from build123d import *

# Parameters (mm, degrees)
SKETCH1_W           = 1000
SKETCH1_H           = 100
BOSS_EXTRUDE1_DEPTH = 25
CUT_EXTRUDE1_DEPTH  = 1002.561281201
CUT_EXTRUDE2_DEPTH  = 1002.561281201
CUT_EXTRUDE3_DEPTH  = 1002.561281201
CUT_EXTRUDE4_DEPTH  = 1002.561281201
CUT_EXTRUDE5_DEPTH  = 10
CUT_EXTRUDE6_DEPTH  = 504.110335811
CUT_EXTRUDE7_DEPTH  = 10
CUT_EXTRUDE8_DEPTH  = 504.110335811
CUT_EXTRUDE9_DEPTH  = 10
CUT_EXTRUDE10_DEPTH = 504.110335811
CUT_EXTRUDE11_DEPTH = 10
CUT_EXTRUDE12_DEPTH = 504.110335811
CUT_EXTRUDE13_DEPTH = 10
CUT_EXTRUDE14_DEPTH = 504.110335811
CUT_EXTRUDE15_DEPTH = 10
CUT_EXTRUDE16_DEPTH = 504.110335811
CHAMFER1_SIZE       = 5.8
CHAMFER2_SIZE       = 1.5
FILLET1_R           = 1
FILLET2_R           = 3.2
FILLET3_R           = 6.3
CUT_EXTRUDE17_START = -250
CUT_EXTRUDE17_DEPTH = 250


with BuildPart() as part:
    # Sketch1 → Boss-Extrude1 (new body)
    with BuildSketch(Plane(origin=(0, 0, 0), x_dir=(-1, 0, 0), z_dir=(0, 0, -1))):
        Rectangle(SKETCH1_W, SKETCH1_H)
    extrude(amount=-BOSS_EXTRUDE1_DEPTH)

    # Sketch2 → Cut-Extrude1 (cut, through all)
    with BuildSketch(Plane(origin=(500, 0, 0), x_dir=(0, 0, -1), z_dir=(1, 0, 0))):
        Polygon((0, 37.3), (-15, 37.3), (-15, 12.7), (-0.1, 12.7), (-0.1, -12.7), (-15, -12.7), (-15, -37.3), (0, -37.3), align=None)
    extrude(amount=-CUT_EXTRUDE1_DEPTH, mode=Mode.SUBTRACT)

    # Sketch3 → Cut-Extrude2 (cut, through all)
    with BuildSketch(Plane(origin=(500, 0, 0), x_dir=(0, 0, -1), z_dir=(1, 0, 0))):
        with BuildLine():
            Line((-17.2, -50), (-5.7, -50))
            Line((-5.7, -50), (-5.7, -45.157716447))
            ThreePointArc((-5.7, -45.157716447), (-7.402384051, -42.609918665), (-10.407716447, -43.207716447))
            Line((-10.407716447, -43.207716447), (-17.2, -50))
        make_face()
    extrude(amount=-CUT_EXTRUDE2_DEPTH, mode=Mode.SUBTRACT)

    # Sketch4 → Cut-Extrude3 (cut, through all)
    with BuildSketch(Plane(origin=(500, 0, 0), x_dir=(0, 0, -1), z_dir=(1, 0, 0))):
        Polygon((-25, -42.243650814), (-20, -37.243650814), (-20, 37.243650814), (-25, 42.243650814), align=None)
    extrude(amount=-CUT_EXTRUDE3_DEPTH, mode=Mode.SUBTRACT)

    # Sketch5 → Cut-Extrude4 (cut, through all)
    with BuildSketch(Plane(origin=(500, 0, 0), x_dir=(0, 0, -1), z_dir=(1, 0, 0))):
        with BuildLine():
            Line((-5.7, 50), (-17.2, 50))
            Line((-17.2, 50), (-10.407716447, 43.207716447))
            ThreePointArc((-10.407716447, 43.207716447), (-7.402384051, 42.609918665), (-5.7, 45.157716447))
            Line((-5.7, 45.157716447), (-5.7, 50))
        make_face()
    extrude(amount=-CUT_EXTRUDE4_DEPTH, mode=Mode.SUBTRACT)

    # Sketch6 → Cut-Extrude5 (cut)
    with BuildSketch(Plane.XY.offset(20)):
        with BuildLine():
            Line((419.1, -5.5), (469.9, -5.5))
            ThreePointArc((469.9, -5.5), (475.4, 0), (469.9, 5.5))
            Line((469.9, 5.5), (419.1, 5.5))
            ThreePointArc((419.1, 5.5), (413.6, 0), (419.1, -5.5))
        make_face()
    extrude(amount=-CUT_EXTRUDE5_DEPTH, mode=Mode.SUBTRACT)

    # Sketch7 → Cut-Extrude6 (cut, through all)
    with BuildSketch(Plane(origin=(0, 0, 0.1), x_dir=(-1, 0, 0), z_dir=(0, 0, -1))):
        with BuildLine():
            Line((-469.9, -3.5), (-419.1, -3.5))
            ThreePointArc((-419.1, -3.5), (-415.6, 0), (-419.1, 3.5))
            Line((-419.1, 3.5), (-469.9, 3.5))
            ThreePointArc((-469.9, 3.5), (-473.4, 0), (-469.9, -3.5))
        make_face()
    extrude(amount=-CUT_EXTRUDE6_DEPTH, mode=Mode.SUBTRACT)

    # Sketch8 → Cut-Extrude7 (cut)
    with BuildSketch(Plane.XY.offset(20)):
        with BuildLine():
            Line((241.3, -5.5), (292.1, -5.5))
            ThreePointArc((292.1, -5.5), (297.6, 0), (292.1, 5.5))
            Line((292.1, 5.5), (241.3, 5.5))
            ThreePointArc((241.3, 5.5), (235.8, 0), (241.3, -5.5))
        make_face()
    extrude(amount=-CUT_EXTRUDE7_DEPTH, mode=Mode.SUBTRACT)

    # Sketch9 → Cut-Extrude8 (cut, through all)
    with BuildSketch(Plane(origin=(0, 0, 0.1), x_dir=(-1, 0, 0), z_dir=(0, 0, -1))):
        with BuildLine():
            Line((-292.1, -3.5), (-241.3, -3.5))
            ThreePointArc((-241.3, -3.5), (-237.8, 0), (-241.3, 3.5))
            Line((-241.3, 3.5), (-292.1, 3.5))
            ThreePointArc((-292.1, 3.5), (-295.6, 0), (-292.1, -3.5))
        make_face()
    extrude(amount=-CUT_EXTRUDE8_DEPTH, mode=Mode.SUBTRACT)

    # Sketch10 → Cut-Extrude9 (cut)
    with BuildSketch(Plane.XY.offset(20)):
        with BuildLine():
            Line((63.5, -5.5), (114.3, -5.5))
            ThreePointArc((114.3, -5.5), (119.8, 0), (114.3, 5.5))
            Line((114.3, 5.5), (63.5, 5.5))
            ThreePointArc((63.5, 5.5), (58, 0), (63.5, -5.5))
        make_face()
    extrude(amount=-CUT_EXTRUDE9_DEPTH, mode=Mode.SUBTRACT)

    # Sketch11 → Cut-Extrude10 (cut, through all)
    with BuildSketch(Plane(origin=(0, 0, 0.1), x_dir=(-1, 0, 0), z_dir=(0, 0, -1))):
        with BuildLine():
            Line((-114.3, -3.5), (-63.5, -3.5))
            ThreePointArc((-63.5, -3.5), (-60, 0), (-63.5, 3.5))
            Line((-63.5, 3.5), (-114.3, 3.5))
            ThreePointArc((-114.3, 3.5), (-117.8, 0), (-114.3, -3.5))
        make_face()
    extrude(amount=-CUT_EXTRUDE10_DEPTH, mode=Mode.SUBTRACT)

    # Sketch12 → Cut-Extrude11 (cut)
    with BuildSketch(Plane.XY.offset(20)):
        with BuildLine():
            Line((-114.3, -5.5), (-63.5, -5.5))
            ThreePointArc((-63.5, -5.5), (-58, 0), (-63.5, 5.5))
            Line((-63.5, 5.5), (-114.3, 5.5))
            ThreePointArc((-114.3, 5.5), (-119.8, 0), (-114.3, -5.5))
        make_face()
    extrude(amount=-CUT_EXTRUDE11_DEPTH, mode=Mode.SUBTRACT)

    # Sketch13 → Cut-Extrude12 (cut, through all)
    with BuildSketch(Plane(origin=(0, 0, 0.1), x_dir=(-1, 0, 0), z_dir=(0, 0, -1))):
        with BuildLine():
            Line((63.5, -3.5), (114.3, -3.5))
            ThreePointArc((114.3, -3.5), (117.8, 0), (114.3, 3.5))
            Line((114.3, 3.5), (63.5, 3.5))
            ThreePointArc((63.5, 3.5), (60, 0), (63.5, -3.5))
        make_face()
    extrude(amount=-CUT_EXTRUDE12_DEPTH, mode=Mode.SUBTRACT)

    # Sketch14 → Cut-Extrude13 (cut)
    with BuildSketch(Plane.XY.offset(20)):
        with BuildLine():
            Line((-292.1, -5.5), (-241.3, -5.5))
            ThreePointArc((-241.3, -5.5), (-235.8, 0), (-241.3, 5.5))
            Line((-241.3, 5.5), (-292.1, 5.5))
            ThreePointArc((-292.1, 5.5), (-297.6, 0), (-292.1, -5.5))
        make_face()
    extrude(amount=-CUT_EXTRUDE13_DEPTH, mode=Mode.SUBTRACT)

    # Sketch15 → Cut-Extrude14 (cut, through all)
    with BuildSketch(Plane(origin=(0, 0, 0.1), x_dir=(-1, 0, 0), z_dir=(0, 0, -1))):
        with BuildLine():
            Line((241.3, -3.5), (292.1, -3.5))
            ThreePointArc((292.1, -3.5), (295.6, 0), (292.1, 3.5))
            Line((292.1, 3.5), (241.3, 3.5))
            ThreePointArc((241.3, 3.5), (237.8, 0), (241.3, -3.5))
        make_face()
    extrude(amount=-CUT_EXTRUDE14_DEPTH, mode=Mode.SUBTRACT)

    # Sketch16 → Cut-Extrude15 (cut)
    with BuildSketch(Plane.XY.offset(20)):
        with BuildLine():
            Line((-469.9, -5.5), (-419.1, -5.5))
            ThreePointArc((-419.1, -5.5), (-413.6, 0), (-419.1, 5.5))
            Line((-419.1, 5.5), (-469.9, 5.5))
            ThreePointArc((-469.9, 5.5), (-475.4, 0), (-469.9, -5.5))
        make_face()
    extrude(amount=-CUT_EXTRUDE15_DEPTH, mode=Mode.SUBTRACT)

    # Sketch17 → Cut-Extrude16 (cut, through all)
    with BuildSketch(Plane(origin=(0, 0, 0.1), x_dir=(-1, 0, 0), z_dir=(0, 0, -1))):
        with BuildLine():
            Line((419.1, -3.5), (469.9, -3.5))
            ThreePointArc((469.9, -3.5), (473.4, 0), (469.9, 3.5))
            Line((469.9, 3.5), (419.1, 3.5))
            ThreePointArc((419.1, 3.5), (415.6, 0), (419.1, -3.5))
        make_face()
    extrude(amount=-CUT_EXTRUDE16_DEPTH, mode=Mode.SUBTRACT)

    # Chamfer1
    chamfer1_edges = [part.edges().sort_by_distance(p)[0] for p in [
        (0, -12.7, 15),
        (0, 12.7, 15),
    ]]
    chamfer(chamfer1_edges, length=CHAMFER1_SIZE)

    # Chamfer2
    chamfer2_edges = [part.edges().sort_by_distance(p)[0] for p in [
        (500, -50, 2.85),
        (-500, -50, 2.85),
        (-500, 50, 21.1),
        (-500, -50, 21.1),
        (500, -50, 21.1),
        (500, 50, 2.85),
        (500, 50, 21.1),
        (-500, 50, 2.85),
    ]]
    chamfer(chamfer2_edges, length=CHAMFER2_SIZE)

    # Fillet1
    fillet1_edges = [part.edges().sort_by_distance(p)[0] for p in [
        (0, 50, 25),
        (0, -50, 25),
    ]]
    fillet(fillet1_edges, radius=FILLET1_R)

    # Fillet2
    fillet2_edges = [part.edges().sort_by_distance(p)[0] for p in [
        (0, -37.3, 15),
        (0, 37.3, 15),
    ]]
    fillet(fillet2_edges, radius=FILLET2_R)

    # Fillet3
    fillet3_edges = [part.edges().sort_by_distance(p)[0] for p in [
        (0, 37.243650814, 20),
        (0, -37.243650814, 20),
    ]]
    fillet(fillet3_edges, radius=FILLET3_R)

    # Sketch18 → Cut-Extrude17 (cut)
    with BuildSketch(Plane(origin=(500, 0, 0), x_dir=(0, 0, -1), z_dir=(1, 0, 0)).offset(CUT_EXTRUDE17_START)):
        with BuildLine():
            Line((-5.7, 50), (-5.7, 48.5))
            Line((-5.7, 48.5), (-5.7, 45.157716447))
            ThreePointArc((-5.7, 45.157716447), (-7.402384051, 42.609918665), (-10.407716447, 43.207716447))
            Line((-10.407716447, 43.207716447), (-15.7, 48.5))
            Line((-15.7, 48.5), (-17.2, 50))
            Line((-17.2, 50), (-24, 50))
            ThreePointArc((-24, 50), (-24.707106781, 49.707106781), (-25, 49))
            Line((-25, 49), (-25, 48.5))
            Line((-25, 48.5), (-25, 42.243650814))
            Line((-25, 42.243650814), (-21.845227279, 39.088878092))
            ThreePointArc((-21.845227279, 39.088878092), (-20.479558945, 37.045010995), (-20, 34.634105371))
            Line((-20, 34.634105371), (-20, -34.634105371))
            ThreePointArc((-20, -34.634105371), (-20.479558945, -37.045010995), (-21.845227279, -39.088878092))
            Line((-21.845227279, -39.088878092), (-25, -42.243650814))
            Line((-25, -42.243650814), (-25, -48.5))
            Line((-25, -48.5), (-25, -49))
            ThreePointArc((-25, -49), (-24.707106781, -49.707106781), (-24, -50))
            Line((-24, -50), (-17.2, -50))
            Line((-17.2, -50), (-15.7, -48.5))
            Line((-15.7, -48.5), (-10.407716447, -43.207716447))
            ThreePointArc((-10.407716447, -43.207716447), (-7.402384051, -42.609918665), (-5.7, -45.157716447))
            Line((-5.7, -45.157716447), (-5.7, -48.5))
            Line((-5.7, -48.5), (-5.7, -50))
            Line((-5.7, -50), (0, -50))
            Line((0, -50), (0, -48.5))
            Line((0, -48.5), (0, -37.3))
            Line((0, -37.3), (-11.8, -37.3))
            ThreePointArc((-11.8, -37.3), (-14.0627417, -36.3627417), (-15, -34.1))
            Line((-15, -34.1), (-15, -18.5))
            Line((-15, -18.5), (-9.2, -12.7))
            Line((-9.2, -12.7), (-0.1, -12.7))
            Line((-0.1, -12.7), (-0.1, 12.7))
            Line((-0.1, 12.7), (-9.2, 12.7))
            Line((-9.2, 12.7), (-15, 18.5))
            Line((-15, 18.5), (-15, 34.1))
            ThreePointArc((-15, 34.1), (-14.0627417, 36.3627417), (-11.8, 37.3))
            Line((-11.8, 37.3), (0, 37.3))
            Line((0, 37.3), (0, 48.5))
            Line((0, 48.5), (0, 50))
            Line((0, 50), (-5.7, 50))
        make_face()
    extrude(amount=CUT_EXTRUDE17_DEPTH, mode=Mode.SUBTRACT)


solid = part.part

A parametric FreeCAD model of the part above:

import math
import FreeCAD as App
import Part
import Sketcher
Q = App.Units.Quantity


def edges_at(feature, points):
    """Names of the edges that pass closest to the given points."""
    edges = feature.Shape.Edges
    near = lambda p: min(range(len(edges)), key=lambda i: edges[i].distToShape(Part.Vertex(*p))[0])
    return sorted({f"Edge{near(p) + 1}" for p in points})

doc = App.newDocument("Part")
body = doc.addObject("PartDesign::Body", "Body")

# Sketch on XY plane
sketch1 = body.newObject("Sketcher::SketchObject", "Sketch")
sketch1.AttachmentSupport = (doc.getObject("XY_Plane"), [""])
sketch1.MapMode = "FlatFace"
sketch1.addGeometry(Part.LineSegment(App.Vector(500, 50, 0), App.Vector(500, -50, 0)), False)
sketch1.addGeometry(Part.LineSegment(App.Vector(500, -50, 0), App.Vector(-500, -50, 0)), False)
sketch1.addGeometry(Part.LineSegment(App.Vector(-500, -50, 0), App.Vector(-500, 50, 0)), False)
sketch1.addGeometry(Part.LineSegment(App.Vector(-500, 50, 0), App.Vector(500, 50, 0)), False)
sketch1.addConstraint(Sketcher.Constraint("Coincident", 0, 2, 1, 1))
sketch1.addConstraint(Sketcher.Constraint("Coincident", 1, 2, 2, 1))
sketch1.addConstraint(Sketcher.Constraint("Coincident", 2, 2, 3, 1))
sketch1.addConstraint(Sketcher.Constraint("Coincident", 3, 2, 0, 1))
sketch1.addConstraint(Sketcher.Constraint("Vertical", 0))
sketch1.addConstraint(Sketcher.Constraint("Horizontal", 1))
sketch1.addConstraint(Sketcher.Constraint("Vertical", 2))
sketch1.addConstraint(Sketcher.Constraint("Horizontal", 3))
sketch1.addConstraint(Sketcher.Constraint("Symmetric", 0, 2, 2, 2, -1, 1))
sketch1.addConstraint(Sketcher.Constraint("DistanceX", 1, 2, 1, 1, Q("1000 mm")))
sketch1.addConstraint(Sketcher.Constraint("DistanceY", 0, 2, 0, 1, Q("100 mm")))
pad1 = body.newObject("PartDesign::Pad", "Pad")
pad1.Profile = sketch1
pad1.Length = 25

# Sketch on YZ plane
sketch2 = body.newObject("Sketcher::SketchObject", "Sketch001")
sketch2.AttachmentSupport = (doc.getObject("YZ_Plane"), [""])
sketch2.MapMode = "FlatFace"
sketch2.AttachmentOffset = App.Placement(App.Vector(0, 0, 500), App.Rotation())
sketch2.addGeometry(Part.LineSegment(App.Vector(37, 0, 0), App.Vector(37, 15, 0)), False)
sketch2.addGeometry(Part.LineSegment(App.Vector(37, 15, 0), App.Vector(13, 15, 0)), False)
sketch2.addGeometry(Part.LineSegment(App.Vector(13, 15, 0), App.Vector(13, 0, 0)), False)
sketch2.addGeometry(Part.LineSegment(App.Vector(13, 0, 0), App.Vector(-13, 0, 0)), False)
sketch2.addGeometry(Part.LineSegment(App.Vector(-13, 0, 0), App.Vector(-13, 15, 0)), False)
sketch2.addGeometry(Part.LineSegment(App.Vector(-13, 15, 0), App.Vector(-37, 15, 0)), False)
sketch2.addGeometry(Part.LineSegment(App.Vector(-37, 15, 0), App.Vector(-37, 0, 0)), False)
sketch2.addGeometry(Part.LineSegment(App.Vector(-37, 0, 0), App.Vector(37, 0, 0)), False)
sketch2.addConstraint(Sketcher.Constraint("Coincident", 0, 2, 1, 1))
sketch2.addConstraint(Sketcher.Constraint("Coincident", 1, 2, 2, 1))
sketch2.addConstraint(Sketcher.Constraint("Coincident", 2, 2, 3, 1))
sketch2.addConstraint(Sketcher.Constraint("Coincident", 3, 2, 4, 1))
sketch2.addConstraint(Sketcher.Constraint("Coincident", 4, 2, 5, 1))
sketch2.addConstraint(Sketcher.Constraint("Coincident", 5, 2, 6, 1))
sketch2.addConstraint(Sketcher.Constraint("Coincident", 6, 2, 7, 1))
sketch2.addConstraint(Sketcher.Constraint("Coincident", 7, 2, 0, 1))
sketch2.addConstraint(Sketcher.Constraint("Vertical", 0))
sketch2.addConstraint(Sketcher.Constraint("Horizontal", 1))
sketch2.addConstraint(Sketcher.Constraint("Vertical", 2))
sketch2.addConstraint(Sketcher.Constraint("Horizontal", 3))
sketch2.addConstraint(Sketcher.Constraint("Vertical", 4))
sketch2.addConstraint(Sketcher.Constraint("Horizontal", 5))
sketch2.addConstraint(Sketcher.Constraint("Vertical", 6))
sketch2.addConstraint(Sketcher.Constraint("Horizontal", 7))
sketch2.addConstraint(Sketcher.Constraint("Symmetric", 6, 2, 7, 2, -1, 1))
sketch2.addConstraint(Sketcher.Constraint("Symmetric", 1, 2, 4, 2, -2))
sketch2.addConstraint(Sketcher.Constraint("DistanceY", 0, 1, 0, 2, Q("15 mm")))
sketch2.addConstraint(Sketcher.Constraint("DistanceX", 1, 2, 1, 1, Q("24.6 mm")))
sketch2.addConstraint(Sketcher.Constraint("DistanceX", 3, 2, 3, 1, Q("25.4 mm")))
sketch2.addConstraint(Sketcher.Constraint("DistanceY", 2, 2, 2, 1, Q("14.9 mm")))
pocket1 = body.newObject("PartDesign::Pocket", "Pocket")
pocket1.Profile = sketch2
pocket1.Type = "ThroughAll"

# Sketch on YZ plane
sketch3 = body.newObject("Sketcher::SketchObject", "Sketch002")
sketch3.AttachmentSupport = (doc.getObject("YZ_Plane"), [""])
sketch3.MapMode = "FlatFace"
sketch3.AttachmentOffset = App.Placement(App.Vector(0, 0, 500), App.Rotation())
sketch3.addGeometry(Part.LineSegment(App.Vector(-50, 17.2, 0), App.Vector(-50, 5.7, 0)), False)
sketch3.addGeometry(Part.LineSegment(App.Vector(-50, 5.7, 0), App.Vector(-45.2, 5.7, 0)), False)
sketch3.addGeometry(Part.ArcOfCircle(Part.Circle(App.Vector(-45.2, 8.5, 0), App.Vector(0, 0, 1), 2.8), math.radians(-90), math.radians(45)), False)
sketch3.addGeometry(Part.LineSegment(App.Vector(-43.2, 10.4, 0), App.Vector(-50, 17.2, 0)), False)
sketch3.addConstraint(Sketcher.Constraint("Coincident", 0, 2, 1, 1))
sketch3.addConstraint(Sketcher.Constraint("Tangent", 1, 2, 2, 1))
sketch3.addConstraint(Sketcher.Constraint("Tangent", 2, 2, 3, 1))
sketch3.addConstraint(Sketcher.Constraint("Coincident", 3, 2, 0, 1))
sketch3.addConstraint(Sketcher.Constraint("Vertical", 0))
sketch3.addConstraint(Sketcher.Constraint("Horizontal", 1))
sketch3.addConstraint(Sketcher.Constraint("Angle", 3, Q("135 deg")))
sketch3.addConstraint(Sketcher.Constraint("DistanceY", 0, 2, 0, 1, Q("11.5 mm")))
sketch3.addConstraint(Sketcher.Constraint("DistanceX", 0, 2, -1, 1, Q("50 mm")))
sketch3.addConstraint(Sketcher.Constraint("DistanceY", -1, 1, 0, 2, Q("5.7 mm")))
sketch3.addConstraint(Sketcher.Constraint("DistanceX", 2, 3, 2, 2, Q("1.95 mm")))
pocket2 = body.newObject("PartDesign::Pocket", "Pocket001")
pocket2.Profile = sketch3
pocket2.Type = "ThroughAll"

# Sketch on YZ plane
sketch4 = body.newObject("Sketcher::SketchObject", "Sketch003")
sketch4.AttachmentSupport = (doc.getObject("YZ_Plane"), [""])
sketch4.MapMode = "FlatFace"
sketch4.AttachmentOffset = App.Placement(App.Vector(0, 0, 500), App.Rotation())
sketch4.addGeometry(Part.LineSegment(App.Vector(-42, 25, 0), App.Vector(-37, 20, 0)), False)
sketch4.addGeometry(Part.LineSegment(App.Vector(-37, 20, 0), App.Vector(37, 20, 0)), False)
sketch4.addGeometry(Part.LineSegment(App.Vector(37, 20, 0), App.Vector(42, 25, 0)), False)
sketch4.addGeometry(Part.LineSegment(App.Vector(42, 25, 0), App.Vector(-42, 25, 0)), False)
sketch4.addConstraint(Sketcher.Constraint("Coincident", 0, 2, 1, 1))
sketch4.addConstraint(Sketcher.Constraint("Coincident", 1, 2, 2, 1))
sketch4.addConstraint(Sketcher.Constraint("Coincident", 2, 2, 3, 1))
sketch4.addConstraint(Sketcher.Constraint("Coincident", 3, 2, 0, 1))
sketch4.addConstraint(Sketcher.Constraint("Horizontal", 1))
sketch4.addConstraint(Sketcher.Constraint("Horizontal", 3))
sketch4.addConstraint(Sketcher.Constraint("Perpendicular", 0, 2))
sketch4.addConstraint(Sketcher.Constraint("Equal", 0, 2))
sketch4.addConstraint(Sketcher.Constraint("DistanceY", -1, 1, 0, 2, Q("20 mm")))
sketch4.addConstraint(Sketcher.Constraint("DistanceY", -1, 1, 2, 2, Q("25 mm")))
sketch4.addConstraint(Sketcher.Constraint("DistanceX", 1, 1, 1, 2, Q("74.487302 mm")))
sketch4.addConstraint(Sketcher.Constraint("DistanceX", 0, 2, -1, 1, Q("37.243651 mm")))
pocket3 = body.newObject("PartDesign::Pocket", "Pocket002")
pocket3.Profile = sketch4
pocket3.Type = "ThroughAll"

# Sketch on YZ plane
sketch5 = body.newObject("Sketcher::SketchObject", "Sketch004")
sketch5.AttachmentSupport = (doc.getObject("YZ_Plane"), [""])
sketch5.MapMode = "FlatFace"
sketch5.AttachmentOffset = App.Placement(App.Vector(0, 0, 500), App.Rotation())
sketch5.addGeometry(Part.LineSegment(App.Vector(50, 5.7, 0), App.Vector(50, 17.2, 0)), False)
sketch5.addGeometry(Part.LineSegment(App.Vector(50, 17.2, 0), App.Vector(43.2, 10.4, 0)), False)
sketch5.addGeometry(Part.ArcOfCircle(Part.Circle(App.Vector(45.2, 8.5, 0), App.Vector(0, 0, 1), 2.8), math.radians(135), math.radians(270)), False)
sketch5.addGeometry(Part.LineSegment(App.Vector(45.2, 5.7, 0), App.Vector(50, 5.7, 0)), False)
sketch5.addConstraint(Sketcher.Constraint("Coincident", 0, 2, 1, 1))
sketch5.addConstraint(Sketcher.Constraint("Tangent", 1, 2, 2, 1))
sketch5.addConstraint(Sketcher.Constraint("Tangent", 2, 2, 3, 1))
sketch5.addConstraint(Sketcher.Constraint("Coincident", 3, 2, 0, 1))
sketch5.addConstraint(Sketcher.Constraint("Vertical", 0))
sketch5.addConstraint(Sketcher.Constraint("Horizontal", 3))
sketch5.addConstraint(Sketcher.Constraint("Angle", 1, Q("-135 deg")))
sketch5.addConstraint(Sketcher.Constraint("DistanceY", 0, 1, 0, 2, Q("11.5 mm")))
sketch5.addConstraint(Sketcher.Constraint("DistanceX", -1, 1, 0, 2, Q("50 mm")))
sketch5.addConstraint(Sketcher.Constraint("DistanceY", -1, 1, 0, 2, Q("17.2 mm")))
sketch5.addConstraint(Sketcher.Constraint("DistanceX", 1, 2, 2, 3, Q("1.95 mm")))
pocket4 = body.newObject("PartDesign::Pocket", "Pocket003")
pocket4.Profile = sketch5
pocket4.Type = "ThroughAll"

# Sketch on XY plane
sketch6 = body.newObject("Sketcher::SketchObject", "Sketch005")
sketch6.AttachmentSupport = (doc.getObject("XY_Plane"), [""])
sketch6.MapMode = "FlatFace"
sketch6.AttachmentOffset = App.Placement(App.Vector(0, 0, 20), App.Rotation())
sketch6.addGeometry(Part.LineSegment(App.Vector(419, -6, 0), App.Vector(470, -6, 0)), False)
sketch6.addGeometry(Part.ArcOfCircle(Part.Circle(App.Vector(470, 0, 0), App.Vector(0, 0, 1), 6), math.radians(-90), math.radians(90)), False)
sketch6.addGeometry(Part.LineSegment(App.Vector(470, 6, 0), App.Vector(419, 6, 0)), False)
sketch6.addGeometry(Part.ArcOfCircle(Part.Circle(App.Vector(419, 0, 0), App.Vector(0, 0, 1), 6), math.radians(90), math.radians(270)), False)
sketch6.addConstraint(Sketcher.Constraint("Tangent", 0, 2, 1, 1))
sketch6.addConstraint(Sketcher.Constraint("Tangent", 1, 2, 2, 1))
sketch6.addConstraint(Sketcher.Constraint("Tangent", 2, 2, 3, 1))
sketch6.addConstraint(Sketcher.Constraint("Tangent", 3, 2, 0, 1))
sketch6.addConstraint(Sketcher.Constraint("Horizontal", 0))
sketch6.addConstraint(Sketcher.Constraint("Horizontal", 2))
sketch6.addConstraint(Sketcher.Constraint("PointOnObject", 1, 3, -1))
sketch6.addConstraint(Sketcher.Constraint("Radius", 1, Q("5.5 mm")))
sketch6.addConstraint(Sketcher.Constraint("DistanceX", 0, 1, 0, 2, Q("50.8 mm")))
sketch6.addConstraint(Sketcher.Constraint("DistanceX", -1, 1, 1, 3, Q("469.9 mm")))
pocket5 = body.newObject("PartDesign::Pocket", "Pocket004")
pocket5.Profile = sketch6
pocket5.Length = 10

# Sketch on XY plane
sketch7 = body.newObject("Sketcher::SketchObject", "Sketch006")
sketch7.AttachmentSupport = (doc.getObject("XY_Plane"), [""])
sketch7.MapMode = "FlatFace"
sketch7.AttachmentOffset = App.Placement(App.Vector(0, 0, 0.1), App.Rotation())
sketch7.addGeometry(Part.LineSegment(App.Vector(469.9, -3.5, 0), App.Vector(419.1, -3.5, 0)), False)
sketch7.addGeometry(Part.ArcOfCircle(Part.Circle(App.Vector(419.1, 0, 0), App.Vector(0, 0, 1), 3.5), math.radians(90), math.radians(270)), False)
sketch7.addGeometry(Part.LineSegment(App.Vector(419.1, 3.5, 0), App.Vector(469.9, 3.5, 0)), False)
sketch7.addGeometry(Part.ArcOfCircle(Part.Circle(App.Vector(469.9, 0, 0), App.Vector(0, 0, 1), 3.5), math.radians(-90), math.radians(90)), False)
sketch7.addConstraint(Sketcher.Constraint("Tangent", 0, 2, 1, 2))
sketch7.addConstraint(Sketcher.Constraint("Tangent", 1, 1, 2, 1))
sketch7.addConstraint(Sketcher.Constraint("Tangent", 2, 2, 3, 2))
sketch7.addConstraint(Sketcher.Constraint("Tangent", 3, 1, 0, 1))
sketch7.addConstraint(Sketcher.Constraint("Horizontal", 0))
sketch7.addConstraint(Sketcher.Constraint("Horizontal", 2))
sketch7.addConstraint(Sketcher.Constraint("PointOnObject", 1, 3, -1))
sketch7.addConstraint(Sketcher.Constraint("Radius", 1, Q("3.5 mm")))
sketch7.addConstraint(Sketcher.Constraint("DistanceX", 0, 2, 0, 1, Q("50.8 mm")))
sketch7.addConstraint(Sketcher.Constraint("DistanceX", -1, 1, 1, 3, Q("419.1 mm")))
pocket6 = body.newObject("PartDesign::Pocket", "Pocket005")
pocket6.Profile = sketch7
pocket6.Type = "ThroughAll"
pocket6.Reversed = True

# Sketch on XY plane
sketch8 = body.newObject("Sketcher::SketchObject", "Sketch007")
sketch8.AttachmentSupport = (doc.getObject("XY_Plane"), [""])
sketch8.MapMode = "FlatFace"
sketch8.AttachmentOffset = App.Placement(App.Vector(0, 0, 20), App.Rotation())
sketch8.addGeometry(Part.LineSegment(App.Vector(241, -6, 0), App.Vector(292, -6, 0)), False)
sketch8.addGeometry(Part.ArcOfCircle(Part.Circle(App.Vector(292, 0, 0), App.Vector(0, 0, 1), 6), math.radians(-90), math.radians(90)), False)
sketch8.addGeometry(Part.LineSegment(App.Vector(292, 6, 0), App.Vector(241, 6, 0)), False)
sketch8.addGeometry(Part.ArcOfCircle(Part.Circle(App.Vector(241, 0, 0), App.Vector(0, 0, 1), 6), math.radians(90), math.radians(270)), False)
sketch8.addConstraint(Sketcher.Constraint("Tangent", 0, 2, 1, 1))
sketch8.addConstraint(Sketcher.Constraint("Tangent", 1, 2, 2, 1))
sketch8.addConstraint(Sketcher.Constraint("Tangent", 2, 2, 3, 1))
sketch8.addConstraint(Sketcher.Constraint("Tangent", 3, 2, 0, 1))
sketch8.addConstraint(Sketcher.Constraint("Horizontal", 0))
sketch8.addConstraint(Sketcher.Constraint("Horizontal", 2))
sketch8.addConstraint(Sketcher.Constraint("PointOnObject", 1, 3, -1))
sketch8.addConstraint(Sketcher.Constraint("Radius", 1, Q("5.5 mm")))
sketch8.addConstraint(Sketcher.Constraint("DistanceX", 0, 1, 0, 2, Q("50.8 mm")))
sketch8.addConstraint(Sketcher.Constraint("DistanceX", -1, 1, 1, 3, Q("292.1 mm")))
pocket7 = body.newObject("PartDesign::Pocket", "Pocket006")
pocket7.Profile = sketch8
pocket7.Length = 10

# Sketch on XY plane
sketch9 = body.newObject("Sketcher::SketchObject", "Sketch008")
sketch9.AttachmentSupport = (doc.getObject("XY_Plane"), [""])
sketch9.MapMode = "FlatFace"
sketch9.AttachmentOffset = App.Placement(App.Vector(0, 0, 0.1), App.Rotation())
sketch9.addGeometry(Part.LineSegment(App.Vector(292.1, -3.5, 0), App.Vector(241.3, -3.5, 0)), False)
sketch9.addGeometry(Part.ArcOfCircle(Part.Circle(App.Vector(241.3, 0, 0), App.Vector(0, 0, 1), 3.5), math.radians(90), math.radians(270)), False)
sketch9.addGeometry(Part.LineSegment(App.Vector(241.3, 3.5, 0), App.Vector(292.1, 3.5, 0)), False)
sketch9.addGeometry(Part.ArcOfCircle(Part.Circle(App.Vector(292.1, 0, 0), App.Vector(0, 0, 1), 3.5), math.radians(-90), math.radians(90)), False)
sketch9.addConstraint(Sketcher.Constraint("Tangent", 0, 2, 1, 2))
sketch9.addConstraint(Sketcher.Constraint("Tangent", 1, 1, 2, 1))
sketch9.addConstraint(Sketcher.Constraint("Tangent", 2, 2, 3, 2))
sketch9.addConstraint(Sketcher.Constraint("Tangent", 3, 1, 0, 1))
sketch9.addConstraint(Sketcher.Constraint("Horizontal", 0))
sketch9.addConstraint(Sketcher.Constraint("Horizontal", 2))
sketch9.addConstraint(Sketcher.Constraint("PointOnObject", 1, 3, -1))
sketch9.addConstraint(Sketcher.Constraint("Radius", 1, Q("3.5 mm")))
sketch9.addConstraint(Sketcher.Constraint("DistanceX", 0, 2, 0, 1, Q("50.8 mm")))
sketch9.addConstraint(Sketcher.Constraint("DistanceX", -1, 1, 1, 3, Q("241.3 mm")))
pocket8 = body.newObject("PartDesign::Pocket", "Pocket007")
pocket8.Profile = sketch9
pocket8.Type = "ThroughAll"
pocket8.Reversed = True

# Sketch on XY plane
sketch10 = body.newObject("Sketcher::SketchObject", "Sketch009")
sketch10.AttachmentSupport = (doc.getObject("XY_Plane"), [""])
sketch10.MapMode = "FlatFace"
sketch10.AttachmentOffset = App.Placement(App.Vector(0, 0, 20), App.Rotation())
sketch10.addGeometry(Part.LineSegment(App.Vector(64, -6, 0), App.Vector(114, -6, 0)), False)
sketch10.addGeometry(Part.ArcOfCircle(Part.Circle(App.Vector(114, 0, 0), App.Vector(0, 0, 1), 6), math.radians(-90), math.radians(90)), False)
sketch10.addGeometry(Part.LineSegment(App.Vector(114, 6, 0), App.Vector(64, 6, 0)), False)
sketch10.addGeometry(Part.ArcOfCircle(Part.Circle(App.Vector(64, 0, 0), App.Vector(0, 0, 1), 6), math.radians(90), math.radians(270)), False)
sketch10.addConstraint(Sketcher.Constraint("Tangent", 0, 2, 1, 1))
sketch10.addConstraint(Sketcher.Constraint("Tangent", 1, 2, 2, 1))
sketch10.addConstraint(Sketcher.Constraint("Tangent", 2, 2, 3, 1))
sketch10.addConstraint(Sketcher.Constraint("Tangent", 3, 2, 0, 1))
sketch10.addConstraint(Sketcher.Constraint("Horizontal", 0))
sketch10.addConstraint(Sketcher.Constraint("Horizontal", 2))
sketch10.addConstraint(Sketcher.Constraint("PointOnObject", 1, 3, -1))
sketch10.addConstraint(Sketcher.Constraint("Radius", 1, Q("5.5 mm")))
sketch10.addConstraint(Sketcher.Constraint("DistanceX", 0, 1, 0, 2, Q("50.8 mm")))
sketch10.addConstraint(Sketcher.Constraint("DistanceX", -1, 1, 1, 3, Q("114.3 mm")))
pocket9 = body.newObject("PartDesign::Pocket", "Pocket008")
pocket9.Profile = sketch10
pocket9.Length = 10

# Sketch on XY plane
sketch11 = body.newObject("Sketcher::SketchObject", "Sketch010")
sketch11.AttachmentSupport = (doc.getObject("XY_Plane"), [""])
sketch11.MapMode = "FlatFace"
sketch11.AttachmentOffset = App.Placement(App.Vector(0, 0, 0.1), App.Rotation())
sketch11.addGeometry(Part.LineSegment(App.Vector(114.3, -3.5, 0), App.Vector(63.5, -3.5, 0)), False)
sketch11.addGeometry(Part.ArcOfCircle(Part.Circle(App.Vector(63.5, 0, 0), App.Vector(0, 0, 1), 3.5), math.radians(90), math.radians(270)), False)
sketch11.addGeometry(Part.LineSegment(App.Vector(63.5, 3.5, 0), App.Vector(114.3, 3.5, 0)), False)
sketch11.addGeometry(Part.ArcOfCircle(Part.Circle(App.Vector(114.3, 0, 0), App.Vector(0, 0, 1), 3.5), math.radians(-90), math.radians(90)), False)
sketch11.addConstraint(Sketcher.Constraint("Tangent", 0, 2, 1, 2))
sketch11.addConstraint(Sketcher.Constraint("Tangent", 1, 1, 2, 1))
sketch11.addConstraint(Sketcher.Constraint("Tangent", 2, 2, 3, 2))
sketch11.addConstraint(Sketcher.Constraint("Tangent", 3, 1, 0, 1))
sketch11.addConstraint(Sketcher.Constraint("Horizontal", 0))
sketch11.addConstraint(Sketcher.Constraint("Horizontal", 2))
sketch11.addConstraint(Sketcher.Constraint("PointOnObject", 1, 3, -1))
sketch11.addConstraint(Sketcher.Constraint("Radius", 1, Q("3.5 mm")))
sketch11.addConstraint(Sketcher.Constraint("DistanceX", 0, 2, 0, 1, Q("50.8 mm")))
sketch11.addConstraint(Sketcher.Constraint("DistanceX", -1, 1, 1, 3, Q("63.5 mm")))
pocket10 = body.newObject("PartDesign::Pocket", "Pocket009")
pocket10.Profile = sketch11
pocket10.Type = "ThroughAll"
pocket10.Reversed = True

# Sketch on XY plane
sketch12 = body.newObject("Sketcher::SketchObject", "Sketch011")
sketch12.AttachmentSupport = (doc.getObject("XY_Plane"), [""])
sketch12.MapMode = "FlatFace"
sketch12.AttachmentOffset = App.Placement(App.Vector(0, 0, 20), App.Rotation())
sketch12.addGeometry(Part.LineSegment(App.Vector(-114, -6, 0), App.Vector(-64, -6, 0)), False)
sketch12.addGeometry(Part.ArcOfCircle(Part.Circle(App.Vector(-64, 0, 0), App.Vector(0, 0, 1), 6), math.radians(-90), math.radians(90)), False)
sketch12.addGeometry(Part.LineSegment(App.Vector(-64, 6, 0), App.Vector(-114, 6, 0)), False)
sketch12.addGeometry(Part.ArcOfCircle(Part.Circle(App.Vector(-114, 0, 0), App.Vector(0, 0, 1), 6), math.radians(90), math.radians(270)), False)
sketch12.addConstraint(Sketcher.Constraint("Tangent", 0, 2, 1, 1))
sketch12.addConstraint(Sketcher.Constraint("Tangent", 1, 2, 2, 1))
sketch12.addConstraint(Sketcher.Constraint("Tangent", 2, 2, 3, 1))
sketch12.addConstraint(Sketcher.Constraint("Tangent", 3, 2, 0, 1))
sketch12.addConstraint(Sketcher.Constraint("Horizontal", 0))
sketch12.addConstraint(Sketcher.Constraint("Horizontal", 2))
sketch12.addConstraint(Sketcher.Constraint("PointOnObject", 1, 3, -1))
sketch12.addConstraint(Sketcher.Constraint("Radius", 1, Q("5.5 mm")))
sketch12.addConstraint(Sketcher.Constraint("DistanceX", 0, 1, 0, 2, Q("50.8 mm")))
sketch12.addConstraint(Sketcher.Constraint("DistanceX", 1, 3, -1, 1, Q("63.5 mm")))
pocket11 = body.newObject("PartDesign::Pocket", "Pocket010")
pocket11.Profile = sketch12
pocket11.Length = 10

# Sketch on XY plane
sketch13 = body.newObject("Sketcher::SketchObject", "Sketch012")
sketch13.AttachmentSupport = (doc.getObject("XY_Plane"), [""])
sketch13.MapMode = "FlatFace"
sketch13.AttachmentOffset = App.Placement(App.Vector(0, 0, 0.1), App.Rotation())
sketch13.addGeometry(Part.LineSegment(App.Vector(-63.5, -3.5, 0), App.Vector(-114.3, -3.5, 0)), False)
sketch13.addGeometry(Part.ArcOfCircle(Part.Circle(App.Vector(-114.3, 0, 0), App.Vector(0, 0, 1), 3.5), math.radians(90), math.radians(270)), False)
sketch13.addGeometry(Part.LineSegment(App.Vector(-114.3, 3.5, 0), App.Vector(-63.5, 3.5, 0)), False)
sketch13.addGeometry(Part.ArcOfCircle(Part.Circle(App.Vector(-63.5, 0, 0), App.Vector(0, 0, 1), 3.5), math.radians(-90), math.radians(90)), False)
sketch13.addConstraint(Sketcher.Constraint("Tangent", 0, 2, 1, 2))
sketch13.addConstraint(Sketcher.Constraint("Tangent", 1, 1, 2, 1))
sketch13.addConstraint(Sketcher.Constraint("Tangent", 2, 2, 3, 2))
sketch13.addConstraint(Sketcher.Constraint("Tangent", 3, 1, 0, 1))
sketch13.addConstraint(Sketcher.Constraint("Horizontal", 0))
sketch13.addConstraint(Sketcher.Constraint("Horizontal", 2))
sketch13.addConstraint(Sketcher.Constraint("PointOnObject", 1, 3, -1))
sketch13.addConstraint(Sketcher.Constraint("Radius", 1, Q("3.5 mm")))
sketch13.addConstraint(Sketcher.Constraint("DistanceX", 0, 2, 0, 1, Q("50.8 mm")))
sketch13.addConstraint(Sketcher.Constraint("DistanceX", 1, 3, -1, 1, Q("114.3 mm")))
pocket12 = body.newObject("PartDesign::Pocket", "Pocket011")
pocket12.Profile = sketch13
pocket12.Type = "ThroughAll"
pocket12.Reversed = True

# Sketch on XY plane
sketch14 = body.newObject("Sketcher::SketchObject", "Sketch013")
sketch14.AttachmentSupport = (doc.getObject("XY_Plane"), [""])
sketch14.MapMode = "FlatFace"
sketch14.AttachmentOffset = App.Placement(App.Vector(0, 0, 20), App.Rotation())
sketch14.addGeometry(Part.LineSegment(App.Vector(-292, -6, 0), App.Vector(-241, -6, 0)), False)
sketch14.addGeometry(Part.ArcOfCircle(Part.Circle(App.Vector(-241, 0, 0), App.Vector(0, 0, 1), 6), math.radians(-90), math.radians(90)), False)
sketch14.addGeometry(Part.LineSegment(App.Vector(-241, 6, 0), App.Vector(-292, 6, 0)), False)
sketch14.addGeometry(Part.ArcOfCircle(Part.Circle(App.Vector(-292, 0, 0), App.Vector(0, 0, 1), 6), math.radians(90), math.radians(270)), False)
sketch14.addConstraint(Sketcher.Constraint("Tangent", 0, 2, 1, 1))
sketch14.addConstraint(Sketcher.Constraint("Tangent", 1, 2, 2, 1))
sketch14.addConstraint(Sketcher.Constraint("Tangent", 2, 2, 3, 1))
sketch14.addConstraint(Sketcher.Constraint("Tangent", 3, 2, 0, 1))
sketch14.addConstraint(Sketcher.Constraint("Horizontal", 0))
sketch14.addConstraint(Sketcher.Constraint("Horizontal", 2))
sketch14.addConstraint(Sketcher.Constraint("PointOnObject", 1, 3, -1))
sketch14.addConstraint(Sketcher.Constraint("Radius", 1, Q("5.5 mm")))
sketch14.addConstraint(Sketcher.Constraint("DistanceX", 0, 1, 0, 2, Q("50.8 mm")))
sketch14.addConstraint(Sketcher.Constraint("DistanceX", 1, 3, -1, 1, Q("241.3 mm")))
pocket13 = body.newObject("PartDesign::Pocket", "Pocket012")
pocket13.Profile = sketch14
pocket13.Length = 10

# Sketch on XY plane
sketch15 = body.newObject("Sketcher::SketchObject", "Sketch014")
sketch15.AttachmentSupport = (doc.getObject("XY_Plane"), [""])
sketch15.MapMode = "FlatFace"
sketch15.AttachmentOffset = App.Placement(App.Vector(0, 0, 0.1), App.Rotation())
sketch15.addGeometry(Part.LineSegment(App.Vector(-241.3, -3.5, 0), App.Vector(-292.1, -3.5, 0)), False)
sketch15.addGeometry(Part.ArcOfCircle(Part.Circle(App.Vector(-292.1, 0, 0), App.Vector(0, 0, 1), 3.5), math.radians(90), math.radians(270)), False)
sketch15.addGeometry(Part.LineSegment(App.Vector(-292.1, 3.5, 0), App.Vector(-241.3, 3.5, 0)), False)
sketch15.addGeometry(Part.ArcOfCircle(Part.Circle(App.Vector(-241.3, 0, 0), App.Vector(0, 0, 1), 3.5), math.radians(-90), math.radians(90)), False)
sketch15.addConstraint(Sketcher.Constraint("Tangent", 0, 2, 1, 2))
sketch15.addConstraint(Sketcher.Constraint("Tangent", 1, 1, 2, 1))
sketch15.addConstraint(Sketcher.Constraint("Tangent", 2, 2, 3, 2))
sketch15.addConstraint(Sketcher.Constraint("Tangent", 3, 1, 0, 1))
sketch15.addConstraint(Sketcher.Constraint("Horizontal", 0))
sketch15.addConstraint(Sketcher.Constraint("Horizontal", 2))
sketch15.addConstraint(Sketcher.Constraint("PointOnObject", 1, 3, -1))
sketch15.addConstraint(Sketcher.Constraint("Radius", 1, Q("3.5 mm")))
sketch15.addConstraint(Sketcher.Constraint("DistanceX", 0, 2, 0, 1, Q("50.8 mm")))
sketch15.addConstraint(Sketcher.Constraint("DistanceX", 1, 3, -1, 1, Q("292.1 mm")))
pocket14 = body.newObject("PartDesign::Pocket", "Pocket013")
pocket14.Profile = sketch15
pocket14.Type = "ThroughAll"
pocket14.Reversed = True

# Sketch on XY plane
sketch16 = body.newObject("Sketcher::SketchObject", "Sketch015")
sketch16.AttachmentSupport = (doc.getObject("XY_Plane"), [""])
sketch16.MapMode = "FlatFace"
sketch16.AttachmentOffset = App.Placement(App.Vector(0, 0, 20), App.Rotation())
sketch16.addGeometry(Part.LineSegment(App.Vector(-470, -6, 0), App.Vector(-419, -6, 0)), False)
sketch16.addGeometry(Part.ArcOfCircle(Part.Circle(App.Vector(-419, 0, 0), App.Vector(0, 0, 1), 6), math.radians(-90), math.radians(90)), False)
sketch16.addGeometry(Part.LineSegment(App.Vector(-419, 6, 0), App.Vector(-470, 6, 0)), False)
sketch16.addGeometry(Part.ArcOfCircle(Part.Circle(App.Vector(-470, 0, 0), App.Vector(0, 0, 1), 6), math.radians(90), math.radians(270)), False)
sketch16.addConstraint(Sketcher.Constraint("Tangent", 0, 2, 1, 1))
sketch16.addConstraint(Sketcher.Constraint("Tangent", 1, 2, 2, 1))
sketch16.addConstraint(Sketcher.Constraint("Tangent", 2, 2, 3, 1))
sketch16.addConstraint(Sketcher.Constraint("Tangent", 3, 2, 0, 1))
sketch16.addConstraint(Sketcher.Constraint("Horizontal", 0))
sketch16.addConstraint(Sketcher.Constraint("Horizontal", 2))
sketch16.addConstraint(Sketcher.Constraint("PointOnObject", 1, 3, -1))
sketch16.addConstraint(Sketcher.Constraint("Radius", 1, Q("5.5 mm")))
sketch16.addConstraint(Sketcher.Constraint("DistanceX", 0, 1, 0, 2, Q("50.8 mm")))
sketch16.addConstraint(Sketcher.Constraint("DistanceX", 1, 3, -1, 1, Q("419.1 mm")))
pocket15 = body.newObject("PartDesign::Pocket", "Pocket014")
pocket15.Profile = sketch16
pocket15.Length = 10

# Sketch on XY plane
sketch17 = body.newObject("Sketcher::SketchObject", "Sketch016")
sketch17.AttachmentSupport = (doc.getObject("XY_Plane"), [""])
sketch17.MapMode = "FlatFace"
sketch17.AttachmentOffset = App.Placement(App.Vector(0, 0, 0.1), App.Rotation())
sketch17.addGeometry(Part.LineSegment(App.Vector(-419.1, -3.5, 0), App.Vector(-469.9, -3.5, 0)), False)
sketch17.addGeometry(Part.ArcOfCircle(Part.Circle(App.Vector(-469.9, 0, 0), App.Vector(0, 0, 1), 3.5), math.radians(90), math.radians(270)), False)
sketch17.addGeometry(Part.LineSegment(App.Vector(-469.9, 3.5, 0), App.Vector(-419.1, 3.5, 0)), False)
sketch17.addGeometry(Part.ArcOfCircle(Part.Circle(App.Vector(-419.1, 0, 0), App.Vector(0, 0, 1), 3.5), math.radians(-90), math.radians(90)), False)
sketch17.addConstraint(Sketcher.Constraint("Tangent", 0, 2, 1, 2))
sketch17.addConstraint(Sketcher.Constraint("Tangent", 1, 1, 2, 1))
sketch17.addConstraint(Sketcher.Constraint("Tangent", 2, 2, 3, 2))
sketch17.addConstraint(Sketcher.Constraint("Tangent", 3, 1, 0, 1))
sketch17.addConstraint(Sketcher.Constraint("Horizontal", 0))
sketch17.addConstraint(Sketcher.Constraint("Horizontal", 2))
sketch17.addConstraint(Sketcher.Constraint("PointOnObject", 1, 3, -1))
sketch17.addConstraint(Sketcher.Constraint("Radius", 1, Q("3.5 mm")))
sketch17.addConstraint(Sketcher.Constraint("DistanceX", 0, 2, 0, 1, Q("50.8 mm")))
sketch17.addConstraint(Sketcher.Constraint("DistanceX", 1, 3, -1, 1, Q("469.9 mm")))
pocket16 = body.newObject("PartDesign::Pocket", "Pocket015")
pocket16.Profile = sketch17
pocket16.Type = "ThroughAll"
pocket16.Reversed = True
doc.recompute()

chamfer = body.newObject("PartDesign::Chamfer", "Chamfer")
chamfer.Base = (pocket16, edges_at(pocket16, [(0, -12.7, 15), (0, 12.7, 15)]))
chamfer.Size = 5.8
doc.recompute()

chamfer2 = body.newObject("PartDesign::Chamfer", "Chamfer001")
chamfer2.Base = (chamfer, edges_at(chamfer, [
    (500, -50, 2.85),
    (-500, -50, 2.85),
    (-500, 50, 21.1),
    (-500, -50, 21.1),
    (500, -50, 21.1),
    (500, 50, 2.85),
    (500, 50, 21.1),
    (-500, 50, 2.85),
]))
chamfer2.Size = 1.5
doc.recompute()

fillet = body.newObject("PartDesign::Fillet", "Fillet")
fillet.Base = (chamfer2, edges_at(chamfer2, [(0, 50, 25), (0, -50, 25)]))
fillet.Radius = 1
doc.recompute()

fillet2 = body.newObject("PartDesign::Fillet", "Fillet001")
fillet2.Base = (fillet, edges_at(fillet, [(0, -37.3, 15), (0, 37.3, 15)]))
fillet2.Radius = 3.2
doc.recompute()

fillet3 = body.newObject("PartDesign::Fillet", "Fillet002")
fillet3.Base = (fillet2, edges_at(fillet2, [(0, 37.244, 20), (0, -37.244, 20)]))
fillet3.Radius = 6.3

# Sketch on YZ plane
sketch18 = body.newObject("Sketcher::SketchObject", "Sketch017")
sketch18.AttachmentSupport = (doc.getObject("YZ_Plane"), [""])
sketch18.MapMode = "FlatFace"
sketch18.AttachmentOffset = App.Placement(App.Vector(0, 0, 250), App.Rotation())
sketch18.addGeometry(Part.LineSegment(App.Vector(50, 5.7, 0), App.Vector(45.2, 5.7, 0)), False)
sketch18.addGeometry(Part.ArcOfCircle(Part.Circle(App.Vector(45.2, 8.5, 0), App.Vector(0, 0, 1), 2.8), math.radians(135), math.radians(270)), False)
sketch18.addGeometry(Part.LineSegment(App.Vector(43.2, 10.4, 0), App.Vector(50, 17.2, 0)), False)
sketch18.addGeometry(Part.LineSegment(App.Vector(50, 17.2, 0), App.Vector(50, 24, 0)), False)
sketch18.addGeometry(Part.ArcOfCircle(Part.Circle(App.Vector(49, 24, 0), App.Vector(0, 0, 1), 1), math.radians(0), math.radians(90)), False)
sketch18.addGeometry(Part.LineSegment(App.Vector(49, 25, 0), App.Vector(42.2, 25, 0)), False)
sketch18.addGeometry(Part.LineSegment(App.Vector(42.2, 25, 0), App.Vector(39.1, 21.8, 0)), False)
sketch18.addGeometry(Part.ArcOfCircle(Part.Circle(App.Vector(34.6, 26.3, 0), App.Vector(0, 0, 1), 6.3), math.radians(-90), math.radians(-45)), False)
sketch18.addGeometry(Part.LineSegment(App.Vector(34.6, 20, 0), App.Vector(-34.6, 20, 0)), False)
sketch18.addGeometry(Part.ArcOfCircle(Part.Circle(App.Vector(-34.6, 26.3, 0), App.Vector(0, 0, 1), 6.3), math.radians(-135), math.radians(-90)), False)
sketch18.addGeometry(Part.LineSegment(App.Vector(-39.1, 21.8, 0), App.Vector(-42.2, 25, 0)), False)
sketch18.addGeometry(Part.LineSegment(App.Vector(-42.2, 25, 0), App.Vector(-49, 25, 0)), False)
sketch18.addGeometry(Part.ArcOfCircle(Part.Circle(App.Vector(-49, 24, 0), App.Vector(0, 0, 1), 1), math.radians(90), math.radians(180)), False)
sketch18.addGeometry(Part.LineSegment(App.Vector(-50, 24, 0), App.Vector(-50, 17.2, 0)), False)
sketch18.addGeometry(Part.LineSegment(App.Vector(-50, 17.2, 0), App.Vector(-43.2, 10.4, 0)), False)
sketch18.addGeometry(Part.ArcOfCircle(Part.Circle(App.Vector(-45.2, 8.5, 0), App.Vector(0, 0, 1), 2.8), math.radians(-90), math.radians(45)), False)
sketch18.addGeometry(Part.LineSegment(App.Vector(-45.2, 5.7, 0), App.Vector(-50, 5.7, 0)), False)
sketch18.addGeometry(Part.LineSegment(App.Vector(-50, 5.7, 0), App.Vector(-50, 0, 0)), False)
sketch18.addGeometry(Part.LineSegment(App.Vector(-50, 0, 0), App.Vector(-37.3, 0, 0)), False)
sketch18.addGeometry(Part.LineSegment(App.Vector(-37.3, 0, 0), App.Vector(-37.3, 11.8, 0)), False)
sketch18.addGeometry(Part.ArcOfCircle(Part.Circle(App.Vector(-34.1, 11.8, 0), App.Vector(0, 0, 1), 3.2), math.radians(90), math.radians(180)), False)
sketch18.addGeometry(Part.LineSegment(App.Vector(-34.1, 15, 0), App.Vector(-18.5, 15, 0)), False)
sketch18.addGeometry(Part.LineSegment(App.Vector(-18.5, 15, 0), App.Vector(-12.7, 9.2, 0)), False)
sketch18.addGeometry(Part.LineSegment(App.Vector(-12.7, 9.2, 0), App.Vector(-12.7, 0.1, 0)), False)
sketch18.addGeometry(Part.LineSegment(App.Vector(-12.7, 0.1, 0), App.Vector(12.7, 0.1, 0)), False)
sketch18.addGeometry(Part.LineSegment(App.Vector(12.7, 0.1, 0), App.Vector(12.7, 9.2, 0)), False)
sketch18.addGeometry(Part.LineSegment(App.Vector(12.7, 9.2, 0), App.Vector(18.5, 15, 0)), False)
sketch18.addGeometry(Part.LineSegment(App.Vector(18.5, 15, 0), App.Vector(34.1, 15, 0)), False)
sketch18.addGeometry(Part.ArcOfCircle(Part.Circle(App.Vector(34.1, 11.8, 0), App.Vector(0, 0, 1), 3.2), math.radians(0), math.radians(90)), False)
sketch18.addGeometry(Part.LineSegment(App.Vector(37.3, 11.8, 0), App.Vector(37.3, 0, 0)), False)
sketch18.addGeometry(Part.LineSegment(App.Vector(37.3, 0, 0), App.Vector(50, 0, 0)), False)
sketch18.addGeometry(Part.LineSegment(App.Vector(50, 0, 0), App.Vector(50, 5.7, 0)), False)
sketch18.addConstraint(Sketcher.Constraint("Tangent", 0, 2, 1, 2))
sketch18.addConstraint(Sketcher.Constraint("Tangent", 1, 1, 2, 1))
sketch18.addConstraint(Sketcher.Constraint("Coincident", 2, 2, 3, 1))
sketch18.addConstraint(Sketcher.Constraint("Tangent", 3, 2, 4, 1))
sketch18.addConstraint(Sketcher.Constraint("Tangent", 4, 2, 5, 1))
sketch18.addConstraint(Sketcher.Constraint("Coincident", 5, 2, 6, 1))
sketch18.addConstraint(Sketcher.Constraint("Tangent", 6, 2, 7, 2))
sketch18.addConstraint(Sketcher.Constraint("Tangent", 7, 1, 8, 1))
sketch18.addConstraint(Sketcher.Constraint("Tangent", 8, 2, 9, 2))
sketch18.addConstraint(Sketcher.Constraint("Tangent", 9, 1, 10, 1))
sketch18.addConstraint(Sketcher.Constraint("Coincident", 10, 2, 11, 1))
sketch18.addConstraint(Sketcher.Constraint("Tangent", 11, 2, 12, 1))
sketch18.addConstraint(Sketcher.Constraint("Tangent", 12, 2, 13, 1))
sketch18.addConstraint(Sketcher.Constraint("Coincident", 13, 2, 14, 1))
sketch18.addConstraint(Sketcher.Constraint("Tangent", 14, 2, 15, 2))
sketch18.addConstraint(Sketcher.Constraint("Tangent", 15, 1, 16, 1))
sketch18.addConstraint(Sketcher.Constraint("Coincident", 16, 2, 17, 1))
sketch18.addConstraint(Sketcher.Constraint("Coincident", 17, 2, 18, 1))
sketch18.addConstraint(Sketcher.Constraint("Coincident", 18, 2, 19, 1))
sketch18.addConstraint(Sketcher.Constraint("Tangent", 19, 2, 20, 2))
sketch18.addConstraint(Sketcher.Constraint("Tangent", 20, 1, 21, 1))
sketch18.addConstraint(Sketcher.Constraint("Coincident", 21, 2, 22, 1))
sketch18.addConstraint(Sketcher.Constraint("Coincident", 22, 2, 23, 1))
sketch18.addConstraint(Sketcher.Constraint("Coincident", 23, 2, 24, 1))
sketch18.addConstraint(Sketcher.Constraint("Coincident", 24, 2, 25, 1))
sketch18.addConstraint(Sketcher.Constraint("Coincident", 25, 2, 26, 1))
sketch18.addConstraint(Sketcher.Constraint("Coincident", 26, 2, 27, 1))
sketch18.addConstraint(Sketcher.Constraint("Tangent", 27, 2, 28, 2))
sketch18.addConstraint(Sketcher.Constraint("Tangent", 28, 1, 29, 1))
sketch18.addConstraint(Sketcher.Constraint("Coincident", 29, 2, 30, 1))
sketch18.addConstraint(Sketcher.Constraint("Coincident", 30, 2, 31, 1))
sketch18.addConstraint(Sketcher.Constraint("Coincident", 31, 2, 0, 1))
sketch18.addConstraint(Sketcher.Constraint("Horizontal", 0))
sketch18.addConstraint(Sketcher.Constraint("Vertical", 3))
sketch18.addConstraint(Sketcher.Constraint("Horizontal", 5))
sketch18.addConstraint(Sketcher.Constraint("Horizontal", 8))
sketch18.addConstraint(Sketcher.Constraint("Horizontal", 11))
sketch18.addConstraint(Sketcher.Constraint("Vertical", 13))
sketch18.addConstraint(Sketcher.Constraint("Horizontal", 16))
sketch18.addConstraint(Sketcher.Constraint("Vertical", 17))
sketch18.addConstraint(Sketcher.Constraint("Horizontal", 18))
sketch18.addConstraint(Sketcher.Constraint("Vertical", 19))
sketch18.addConstraint(Sketcher.Constraint("Horizontal", 21))
sketch18.addConstraint(Sketcher.Constraint("Vertical", 23))
sketch18.addConstraint(Sketcher.Constraint("Horizontal", 24))
sketch18.addConstraint(Sketcher.Constraint("Vertical", 25))
sketch18.addConstraint(Sketcher.Constraint("Horizontal", 27))
sketch18.addConstraint(Sketcher.Constraint("Vertical", 29))
sketch18.addConstraint(Sketcher.Constraint("Horizontal", 30))
sketch18.addConstraint(Sketcher.Constraint("Vertical", 31))
sketch18.addConstraint(Sketcher.Constraint("Equal", 7, 9))
sketch18.addConstraint(Sketcher.Constraint("Equal", 4, 12))
sketch18.addConstraint(Sketcher.Constraint("Equal", 1, 15))
sketch18.addConstraint(Sketcher.Constraint("Equal", 20, 28))
sketch18.addConstraint(Sketcher.Constraint("Symmetric", 18, 2, 29, 2, -1, 1))
sketch18.addConstraint(Sketcher.Constraint("Symmetric", 4, 3, 12, 3, -2))
sketch18.addConstraint(Sketcher.Constraint("Symmetric", 1, 3, 15, 3, -2))
sketch18.addConstraint(Sketcher.Constraint("Symmetric", 6, 2, 9, 1, -2))
sketch18.addConstraint(Sketcher.Constraint("Symmetric", 22, 2, 25, 2, -2))
sketch18.addConstraint(Sketcher.Constraint("Symmetric", 21, 2, 26, 2, -2))
sketch18.addConstraint(Sketcher.Constraint("Symmetric", 17, 2, 30, 2, -2))
sketch18.addConstraint(Sketcher.Constraint("Parallel", 2, 6))
sketch18.addConstraint(Sketcher.Constraint("Perpendicular", 6, 10))
sketch18.addConstraint(Sketcher.Constraint("Parallel", 10, 14))
sketch18.addConstraint(Sketcher.Constraint("Parallel", 14, 22))
sketch18.addConstraint(Sketcher.Constraint("Vertical", 13, 2, 16, 2))
sketch18.addConstraint(Sketcher.Constraint("Radius", 4, Q("1 mm")))
sketch18.addConstraint(Sketcher.Constraint("Radius", 7, Q("6.3 mm")))
sketch18.addConstraint(Sketcher.Constraint("Radius", 20, Q("3.2 mm")))
sketch18.addConstraint(Sketcher.Constraint("DistanceX", 18, 1, 18, 2, Q("12.7 mm")))
sketch18.addConstraint(Sketcher.Constraint("DistanceX", 21, 1, 21, 2, Q("15.6 mm")))
sketch18.addConstraint(Sketcher.Constraint("DistanceX", 24, 1, 24, 2, Q("25.4 mm")))
sketch18.addConstraint(Sketcher.Constraint("DistanceY", 3, 1, 3, 2, Q("6.8 mm")))
sketch18.addConstraint(Sketcher.Constraint("DistanceY", 17, 2, 17, 1, Q("5.7 mm")))
sketch18.addConstraint(Sketcher.Constraint("DistanceY", 19, 1, 19, 2, Q("11.8 mm")))
sketch18.addConstraint(Sketcher.Constraint("DistanceY", 23, 2, 23, 1, Q("9.1 mm")))
sketch18.addConstraint(Sketcher.Constraint("DistanceX", -1, 1, 4, 3, Q("49 mm")))
sketch18.addConstraint(Sketcher.Constraint("DistanceY", -1, 1, 4, 3, Q("24 mm")))
sketch18.addConstraint(Sketcher.Constraint("DistanceY", -1, 1, 7, 1, Q("20 mm")))
sketch18.addConstraint(Sketcher.Constraint("DistanceX", 1, 1, 1, 3, Q("1.95 mm")))
sketch18.addConstraint(Sketcher.Constraint("DistanceX", 5, 2, 5, 1, Q("6.756349 mm")))
pocket17 = body.newObject("PartDesign::Pocket", "Pocket016")
pocket17.Profile = sketch18
pocket17.Length = 250
pocket17.Reversed = True

doc.recompute()
